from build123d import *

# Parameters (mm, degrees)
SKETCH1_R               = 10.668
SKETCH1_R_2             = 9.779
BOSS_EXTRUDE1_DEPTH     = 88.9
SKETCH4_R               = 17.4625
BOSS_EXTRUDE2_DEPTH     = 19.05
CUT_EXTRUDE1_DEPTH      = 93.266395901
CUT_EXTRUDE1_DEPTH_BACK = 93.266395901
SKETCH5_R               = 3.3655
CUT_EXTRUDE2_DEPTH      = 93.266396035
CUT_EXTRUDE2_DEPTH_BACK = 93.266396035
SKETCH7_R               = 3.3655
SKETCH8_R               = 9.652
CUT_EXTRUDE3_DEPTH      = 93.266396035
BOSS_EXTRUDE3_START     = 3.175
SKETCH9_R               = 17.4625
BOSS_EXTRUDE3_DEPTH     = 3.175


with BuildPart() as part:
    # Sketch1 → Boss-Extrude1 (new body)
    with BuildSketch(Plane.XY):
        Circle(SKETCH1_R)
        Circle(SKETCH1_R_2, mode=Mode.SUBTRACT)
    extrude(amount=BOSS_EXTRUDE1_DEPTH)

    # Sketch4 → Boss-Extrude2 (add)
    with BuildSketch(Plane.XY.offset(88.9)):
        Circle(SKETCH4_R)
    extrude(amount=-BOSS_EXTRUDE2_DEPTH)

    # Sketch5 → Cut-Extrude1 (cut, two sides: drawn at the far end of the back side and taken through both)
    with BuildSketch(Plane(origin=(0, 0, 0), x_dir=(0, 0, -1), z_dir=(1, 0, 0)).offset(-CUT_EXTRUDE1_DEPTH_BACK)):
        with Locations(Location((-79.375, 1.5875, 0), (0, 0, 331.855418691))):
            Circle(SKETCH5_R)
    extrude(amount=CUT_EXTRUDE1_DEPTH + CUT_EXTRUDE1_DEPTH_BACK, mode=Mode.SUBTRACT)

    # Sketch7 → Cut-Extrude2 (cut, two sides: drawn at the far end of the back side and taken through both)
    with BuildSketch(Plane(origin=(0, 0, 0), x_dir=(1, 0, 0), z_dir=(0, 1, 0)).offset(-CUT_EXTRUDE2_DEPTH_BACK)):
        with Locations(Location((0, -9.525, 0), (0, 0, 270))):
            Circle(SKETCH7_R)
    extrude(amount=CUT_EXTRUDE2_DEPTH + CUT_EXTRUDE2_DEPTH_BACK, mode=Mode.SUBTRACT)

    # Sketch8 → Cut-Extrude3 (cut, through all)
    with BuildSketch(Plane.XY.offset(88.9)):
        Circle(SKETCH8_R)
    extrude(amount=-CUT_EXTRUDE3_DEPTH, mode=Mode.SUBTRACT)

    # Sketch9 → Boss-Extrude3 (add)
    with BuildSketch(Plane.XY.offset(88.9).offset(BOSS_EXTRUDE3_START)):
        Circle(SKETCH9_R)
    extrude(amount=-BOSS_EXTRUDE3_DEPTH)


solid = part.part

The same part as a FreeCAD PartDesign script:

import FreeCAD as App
import Part
import Sketcher
Q = App.Units.Quantity

doc = App.newDocument("Part")
params = doc.addObject("Spreadsheet::Sheet", "Params")
for row, (alias, value) in enumerate([
    ("sketch1_diameter", "0.84 in"),
    ("sketch1_diameter2", "0.77 in"),
    ("pad1_length", "3.5 in"),
    ("sketch2_diameter", "1.375 in"),
    ("pad2_length", "0.75 in"),
    ("sketch3_diameter", "0.265 in"),
    ("sketch4_diameter", "0.265 in"),
    ("sketch5_diameter", "0.76 in"),
    ("sketch6_diameter", "1.375 in"),
    ("pad3_length", "0.125 in"),
], start=1):
    params.set(f"A{row}", alias)
    params.set(f"B{row}", "=" + value)
    params.setAlias(f"B{row}", alias)

body = doc.addObject("PartDesign::Body", "Body")

# Sketch on XY plane
sketch1 = body.newObject("Sketcher::SketchObject", "Sketch")
sketch1.AttachmentSupport = (doc.getObject("XY_Plane"), [""])
sketch1.MapMode = "FlatFace"
sketch1.addGeometry([
    Part.Circle(App.Vector(0, 0, 0), App.Vector(0, 0, 1), 11),
    Part.Circle(App.Vector(0, 0, 0), App.Vector(0, 0, 1), 10),
], False)
sketch1.addConstraint([
    Sketcher.Constraint("Coincident", 0, 3, -1, 1),
    Sketcher.Constraint("Coincident", 1, 3, -1, 1),
    Sketcher.Constraint("Diameter", 0, Q("0.84 in")),
    Sketcher.Constraint("Diameter", 1, Q("0.77 in")),
])
sketch1.setExpression("Constraints[2]", "Params.sketch1_diameter")
sketch1.setExpression("Constraints[3]", "Params.sketch1_diameter2")
pad1 = body.newObject("PartDesign::Pad", "Pad")
pad1.Profile = sketch1
pad1.setExpression("Length", "Params.pad1_length")

# Sketch on XY plane
sketch2 = body.newObject("Sketcher::SketchObject", "Sketch001")
sketch2.AttachmentSupport = (doc.getObject("XY_Plane"), [""])
sketch2.MapMode = "FlatFace"
sketch2.AttachmentOffset = App.Placement(App.Vector(0, 0, 3.5 * 25.4), App.Rotation())
sketch2.addGeometry(Part.Circle(App.Vector(0, 0, 0), App.Vector(0, 0, 1), 17), False)
sketch2.addConstraint([
    Sketcher.Constraint("Coincident", 0, 3, -1, 1),
    Sketcher.Constraint("Diameter", 0, Q("1.375 in")),
])
sketch2.setExpression("Constraints[1]", "Params.sketch2_diameter")
pad2 = body.newObject("PartDesign::Pad", "Pad001")
pad2.Profile = sketch2
pad2.setExpression("Length", "Params.pad2_length")
pad2.Reversed = True

# Sketch on YZ plane
sketch3 = body.newObject("Sketcher::SketchObject", "Sketch002")
sketch3.AttachmentSupport = (doc.getObject("YZ_Plane"), [""])
sketch3.MapMode = "FlatFace"
sketch3.addGeometry(Part.Circle(App.Vector(1.6, 79.4, 0), App.Vector(0, 0, 1), 3.4), False)
sketch3.addConstraint([
    Sketcher.Constraint("Diameter", 0, Q("0.265 in")),
    Sketcher.Constraint("DistanceX", -1, 1, 0, 3, Q("0.0625 in")),
    Sketcher.Constraint("DistanceY", -1, 1, 0, 3, Q("3.125 in")),
])
sketch3.setExpression("Constraints[0]", "Params.sketch3_diameter")
pocket1 = body.newObject("PartDesign::Pocket", "Pocket")
pocket1.Profile = sketch3
pocket1.Type = "ThroughAll"
pocket1.Midplane = True

# Sketch on XZ plane
sketch4 = body.newObject("Sketcher::SketchObject", "Sketch003")
sketch4.AttachmentSupport = (doc.getObject("XZ_Plane"), [""])
sketch4.MapMode = "FlatFace"
sketch4.addGeometry(Part.Circle(App.Vector(0, 9.5, 0), App.Vector(0, 0, 1), 3.4), False)
sketch4.addConstraint([
    Sketcher.Constraint("PointOnObject", 0, 3, -2),
    Sketcher.Constraint("Diameter", 0, Q("0.265 in")),
    Sketcher.Constraint("DistanceY", -1, 1, 0, 3, Q("0.375 in")),
])
sketch4.setExpression("Constraints[1]", "Params.sketch4_diameter")
pocket2 = body.newObject("PartDesign::Pocket", "Pocket001")
pocket2.Profile = sketch4
pocket2.Type = "ThroughAll"
pocket2.Midplane = True

# Sketch on XY plane
sketch5 = body.newObject("Sketcher::SketchObject", "Sketch004")
sketch5.AttachmentSupport = (doc.getObject("XY_Plane"), [""])
sketch5.MapMode = "FlatFace"
sketch5.AttachmentOffset = App.Placement(App.Vector(0, 0, 3.5 * 25.4), App.Rotation())
sketch5.addGeometry(Part.Circle(App.Vector(0, 0, 0), App.Vector(0, 0, 1), 10), False)
sketch5.addConstraint([
    Sketcher.Constraint("Coincident", 0, 3, -1, 1),
    Sketcher.Constraint("Diameter", 0, Q("0.76 in")),
])
sketch5.setExpression("Constraints[1]", "Params.sketch5_diameter")
pocket3 = body.newObject("PartDesign::Pocket", "Pocket002")
pocket3.Profile = sketch5
pocket3.Type = "ThroughAll"

# Sketch on XY plane
sketch6 = body.newObject("Sketcher::SketchObject", "Sketch005")
sketch6.AttachmentSupport = (doc.getObject("XY_Plane"), [""])
sketch6.MapMode = "FlatFace"
sketch6.AttachmentOffset = App.Placement(App.Vector(0, 0, 3.625 * 25.4), App.Rotation())
sketch6.addGeometry(Part.Circle(App.Vector(0, 0, 0), App.Vector(0, 0, 1), 17), False)
sketch6.addConstraint([
    Sketcher.Constraint("Coincident", 0, 3, -1, 1),
    Sketcher.Constraint("Diameter", 0, Q("1.375 in")),
])
sketch6.setExpression("Constraints[1]", "Params.sketch6_diameter")
pad3 = body.newObject("PartDesign::Pad", "Pad002")
pad3.Profile = sketch6
pad3.setExpression("Length", "Params.pad3_length")
pad3.Reversed = True

doc.recompute()
